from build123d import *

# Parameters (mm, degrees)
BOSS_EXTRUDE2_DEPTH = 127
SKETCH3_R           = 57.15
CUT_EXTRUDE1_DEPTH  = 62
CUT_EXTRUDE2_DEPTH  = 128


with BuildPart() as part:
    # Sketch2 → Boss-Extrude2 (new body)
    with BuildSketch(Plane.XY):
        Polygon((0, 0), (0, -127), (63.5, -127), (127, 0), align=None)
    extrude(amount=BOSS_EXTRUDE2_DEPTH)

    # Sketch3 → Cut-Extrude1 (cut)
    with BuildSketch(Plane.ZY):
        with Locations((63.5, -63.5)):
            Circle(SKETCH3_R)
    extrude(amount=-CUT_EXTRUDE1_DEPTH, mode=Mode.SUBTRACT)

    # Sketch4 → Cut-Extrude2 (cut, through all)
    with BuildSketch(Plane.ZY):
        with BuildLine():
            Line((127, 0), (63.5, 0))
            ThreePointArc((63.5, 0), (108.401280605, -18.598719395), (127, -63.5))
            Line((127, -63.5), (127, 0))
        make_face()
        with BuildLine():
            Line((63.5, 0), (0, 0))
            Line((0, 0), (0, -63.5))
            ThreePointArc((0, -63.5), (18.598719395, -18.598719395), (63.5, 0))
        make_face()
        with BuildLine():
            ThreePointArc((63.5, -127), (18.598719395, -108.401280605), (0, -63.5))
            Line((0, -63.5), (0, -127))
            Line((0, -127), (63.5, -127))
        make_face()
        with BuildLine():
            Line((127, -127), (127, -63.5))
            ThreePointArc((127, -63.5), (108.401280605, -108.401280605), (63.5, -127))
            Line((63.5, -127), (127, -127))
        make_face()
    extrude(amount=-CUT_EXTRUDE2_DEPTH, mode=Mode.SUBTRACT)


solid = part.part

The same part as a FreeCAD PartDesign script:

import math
import FreeCAD as App
import Part
import Sketcher
from FreeCAD import Vector
Q = App.Units.Quantity

doc = App.newDocument("Part")
body = doc.addObject("PartDesign::Body", "Body")

# Sketch on XY plane
sketch1 = body.newObject("Sketcher::SketchObject", "Sketch")
sketch1.AttachmentSupport = (doc.getObject("XY_Plane"), [""])
sketch1.MapMode = "FlatFace"
sketch1.addGeometry(Part.LineSegment(Vector(0, 0, 0), Vector(0, -127, 0)), False)
sketch1.addGeometry(Part.LineSegment(Vector(0, -127, 0), Vector(64, -127, 0)), False)
sketch1.addGeometry(Part.LineSegment(Vector(64, -127, 0), Vector(127, 0, 0)), False)
sketch1.addGeometry(Part.LineSegment(Vector(127, 0, 0), Vector(0, 0, 0)), False)
sketch1.addConstraint(Sketcher.Constraint("Coincident", 0, 2, 1, 1))
sketch1.addConstraint(Sketcher.Constraint("Coincident", 1, 2, 2, 1))
sketch1.addConstraint(Sketcher.Constraint("Coincident", 2, 2, 3, 1))
sketch1.addConstraint(Sketcher.Constraint("Coincident", 3, 2, 0, 1))
sketch1.addConstraint(Sketcher.Constraint("Vertical", 0))
sketch1.addConstraint(Sketcher.Constraint("Horizontal", 1))
sketch1.addConstraint(Sketcher.Constraint("Horizontal", 3))
sketch1.addConstraint(Sketcher.Constraint("Coincident", 3, 2, -1, 1))
sketch1.addConstraint(Sketcher.Constraint("Equal", 3, 0))
sketch1.addConstraint(Sketcher.Constraint("DistanceX", 3, 2, 3, 1, Q("5 in")))
sketch1.addConstraint(Sketcher.Constraint("DistanceX", 1, 1, 1, 2, Q("2.5 in")))
pad1 = body.newObject("PartDesign::Pad", "Pad")
pad1.Profile = sketch1
pad1.Length = Q("5 in")

# Sketch on YZ plane
sketch2 = body.newObject("Sketcher::SketchObject", "Sketch001")
sketch2.AttachmentSupport = (doc.getObject("YZ_Plane"), [""])
sketch2.MapMode = "FlatFace"
sketch2.addGeometry(Part.Circle(Vector(-64, 64, 0), Vector(0, 0, 1), 57), False)
sketch2.addConstraint(Sketcher.Constraint("Diameter", 0, Q("4.5 in")))
sketch2.addConstraint(Sketcher.Constraint("DistanceX", 0, 3, -1, 1, Q("2.5 in")))
sketch2.addConstraint(Sketcher.Constraint("DistanceY", -1, 1, 0, 3, Q("2.5 in")))
pocket1 = body.newObject("PartDesign::Pocket", "Pocket")
pocket1.Profile = sketch2
pocket1.Length = 62
pocket1.Reversed = True

# Sketch on YZ plane
sketch3 = body.newObject("Sketcher::SketchObject", "Sketch002")
sketch3.AttachmentSupport = (doc.getObject("YZ_Plane"), [""])
sketch3.MapMode = "FlatFace"
sketch3.addGeometry(Part.LineSegment(Vector(0, 127, 0), Vector(0, 64, 0)), False)
sketch3.addGeometry(Part.ArcOfCircle(Part.Circle(Vector(-64, 63, 0), Vector(0, 0, 1), 64), math.radians(0), math.radians(90)), False)
sketch3.addGeometry(Part.LineSegment(Vector(-64, 127, 0), Vector(0, 127, 0)), False)
sketch3.addGeometry(Part.LineSegment(Vector(0, 64, 0), Vector(0, 0, 0)), False)
sketch3.addGeometry(Part.LineSegment(Vector(0, 0, 0), Vector(-64, 0, 0)), False)
sketch3.addGeometry(Part.ArcOfCircle(Part.Circle(Vector(-64, 64, 0), Vector(0, 0, 1), 64), math.radians(-90), math.radians(0)), False)
sketch3.addGeometry(Part.ArcOfCircle(Part.Circle(Vector(-63, 64, 0), Vector(0, 0, 1), 64), math.radians(-180), math.radians(-90)), False)
sketch3.addGeometry(Part.LineSegment(Vector(-64, 0, 0), Vector(-127, 0, 0)), False)
sketch3.addGeometry(Part.LineSegment(Vector(-127, 0, 0), Vector(-127, 64, 0)), False)
sketch3.addGeometry(Part.LineSegment(Vector(-127, 127, 0), Vector(-64, 127, 0)), False)
sketch3.addGeometry(Part.ArcOfCircle(Part.Circle(Vector(-63, 63, 0), Vector(0, 0, 1), 64), math.radians(90), math.radians(180)), False)
sketch3.addGeometry(Part.LineSegment(Vector(-127, 64, 0), Vector(-127, 127, 0)), False)
sketch3.addConstraint(Sketcher.Constraint("Tangent", 0, 2, 1, 1))
sketch3.addConstraint(Sketcher.Constraint("Tangent", 1, 2, 2, 1))
sketch3.addConstraint(Sketcher.Constraint("Coincident", 2, 2, 0, 1))
sketch3.addConstraint(Sketcher.Constraint("Coincident", 3, 2, 4, 1))
sketch3.addConstraint(Sketcher.Constraint("Tangent", 4, 2, 5, 1))
sketch3.addConstraint(Sketcher.Constraint("Tangent", 5, 2, 3, 1))
sketch3.addConstraint(Sketcher.Constraint("Tangent", 6, 2, 7, 1))
sketch3.addConstraint(Sketcher.Constraint("Coincident", 7, 2, 8, 1))
sketch3.addConstraint(Sketcher.Constraint("Tangent", 8, 2, 6, 1))
sketch3.addConstraint(Sketcher.Constraint("Tangent", 9, 2, 10, 1))
sketch3.addConstraint(Sketcher.Constraint("Tangent", 10, 2, 11, 1))
sketch3.addConstraint(Sketcher.Constraint("Coincident", 11, 2, 9, 1))
sketch3.addConstraint(Sketcher.Constraint("Vertical", 0))
sketch3.addConstraint(Sketcher.Constraint("Horizontal", 2))
sketch3.addConstraint(Sketcher.Constraint("Vertical", 3))
sketch3.addConstraint(Sketcher.Constraint("Horizontal", 4))
sketch3.addConstraint(Sketcher.Constraint("Horizontal", 7))
sketch3.addConstraint(Sketcher.Constraint("Vertical", 8))
sketch3.addConstraint(Sketcher.Constraint("Horizontal", 9))
sketch3.addConstraint(Sketcher.Constraint("Vertical", 11))
sketch3.addConstraint(Sketcher.Constraint("Coincident", 3, 2, -1, 1))
sketch3.addConstraint(Sketcher.Constraint("Coincident", 5, 3, 1, 3))
sketch3.addConstraint(Sketcher.Constraint("Coincident", 6, 3, 1, 3))
sketch3.addConstraint(Sketcher.Constraint("Coincident", 10, 3, 1, 3))
sketch3.addConstraint(Sketcher.Constraint("Equal", 1, 5))
sketch3.addConstraint(Sketcher.Constraint("Equal", 5, 6))
sketch3.addConstraint(Sketcher.Constraint("Equal", 6, 10))
sketch3.addConstraint(Sketcher.Constraint("Radius", 1, Q("2.5 in")))
pocket2 = body.newObject("PartDesign::Pocket", "Pocket001")
pocket2.Profile = sketch3
pocket2.Type = "ThroughAll"
pocket2.Reversed = True

doc.recompute()
